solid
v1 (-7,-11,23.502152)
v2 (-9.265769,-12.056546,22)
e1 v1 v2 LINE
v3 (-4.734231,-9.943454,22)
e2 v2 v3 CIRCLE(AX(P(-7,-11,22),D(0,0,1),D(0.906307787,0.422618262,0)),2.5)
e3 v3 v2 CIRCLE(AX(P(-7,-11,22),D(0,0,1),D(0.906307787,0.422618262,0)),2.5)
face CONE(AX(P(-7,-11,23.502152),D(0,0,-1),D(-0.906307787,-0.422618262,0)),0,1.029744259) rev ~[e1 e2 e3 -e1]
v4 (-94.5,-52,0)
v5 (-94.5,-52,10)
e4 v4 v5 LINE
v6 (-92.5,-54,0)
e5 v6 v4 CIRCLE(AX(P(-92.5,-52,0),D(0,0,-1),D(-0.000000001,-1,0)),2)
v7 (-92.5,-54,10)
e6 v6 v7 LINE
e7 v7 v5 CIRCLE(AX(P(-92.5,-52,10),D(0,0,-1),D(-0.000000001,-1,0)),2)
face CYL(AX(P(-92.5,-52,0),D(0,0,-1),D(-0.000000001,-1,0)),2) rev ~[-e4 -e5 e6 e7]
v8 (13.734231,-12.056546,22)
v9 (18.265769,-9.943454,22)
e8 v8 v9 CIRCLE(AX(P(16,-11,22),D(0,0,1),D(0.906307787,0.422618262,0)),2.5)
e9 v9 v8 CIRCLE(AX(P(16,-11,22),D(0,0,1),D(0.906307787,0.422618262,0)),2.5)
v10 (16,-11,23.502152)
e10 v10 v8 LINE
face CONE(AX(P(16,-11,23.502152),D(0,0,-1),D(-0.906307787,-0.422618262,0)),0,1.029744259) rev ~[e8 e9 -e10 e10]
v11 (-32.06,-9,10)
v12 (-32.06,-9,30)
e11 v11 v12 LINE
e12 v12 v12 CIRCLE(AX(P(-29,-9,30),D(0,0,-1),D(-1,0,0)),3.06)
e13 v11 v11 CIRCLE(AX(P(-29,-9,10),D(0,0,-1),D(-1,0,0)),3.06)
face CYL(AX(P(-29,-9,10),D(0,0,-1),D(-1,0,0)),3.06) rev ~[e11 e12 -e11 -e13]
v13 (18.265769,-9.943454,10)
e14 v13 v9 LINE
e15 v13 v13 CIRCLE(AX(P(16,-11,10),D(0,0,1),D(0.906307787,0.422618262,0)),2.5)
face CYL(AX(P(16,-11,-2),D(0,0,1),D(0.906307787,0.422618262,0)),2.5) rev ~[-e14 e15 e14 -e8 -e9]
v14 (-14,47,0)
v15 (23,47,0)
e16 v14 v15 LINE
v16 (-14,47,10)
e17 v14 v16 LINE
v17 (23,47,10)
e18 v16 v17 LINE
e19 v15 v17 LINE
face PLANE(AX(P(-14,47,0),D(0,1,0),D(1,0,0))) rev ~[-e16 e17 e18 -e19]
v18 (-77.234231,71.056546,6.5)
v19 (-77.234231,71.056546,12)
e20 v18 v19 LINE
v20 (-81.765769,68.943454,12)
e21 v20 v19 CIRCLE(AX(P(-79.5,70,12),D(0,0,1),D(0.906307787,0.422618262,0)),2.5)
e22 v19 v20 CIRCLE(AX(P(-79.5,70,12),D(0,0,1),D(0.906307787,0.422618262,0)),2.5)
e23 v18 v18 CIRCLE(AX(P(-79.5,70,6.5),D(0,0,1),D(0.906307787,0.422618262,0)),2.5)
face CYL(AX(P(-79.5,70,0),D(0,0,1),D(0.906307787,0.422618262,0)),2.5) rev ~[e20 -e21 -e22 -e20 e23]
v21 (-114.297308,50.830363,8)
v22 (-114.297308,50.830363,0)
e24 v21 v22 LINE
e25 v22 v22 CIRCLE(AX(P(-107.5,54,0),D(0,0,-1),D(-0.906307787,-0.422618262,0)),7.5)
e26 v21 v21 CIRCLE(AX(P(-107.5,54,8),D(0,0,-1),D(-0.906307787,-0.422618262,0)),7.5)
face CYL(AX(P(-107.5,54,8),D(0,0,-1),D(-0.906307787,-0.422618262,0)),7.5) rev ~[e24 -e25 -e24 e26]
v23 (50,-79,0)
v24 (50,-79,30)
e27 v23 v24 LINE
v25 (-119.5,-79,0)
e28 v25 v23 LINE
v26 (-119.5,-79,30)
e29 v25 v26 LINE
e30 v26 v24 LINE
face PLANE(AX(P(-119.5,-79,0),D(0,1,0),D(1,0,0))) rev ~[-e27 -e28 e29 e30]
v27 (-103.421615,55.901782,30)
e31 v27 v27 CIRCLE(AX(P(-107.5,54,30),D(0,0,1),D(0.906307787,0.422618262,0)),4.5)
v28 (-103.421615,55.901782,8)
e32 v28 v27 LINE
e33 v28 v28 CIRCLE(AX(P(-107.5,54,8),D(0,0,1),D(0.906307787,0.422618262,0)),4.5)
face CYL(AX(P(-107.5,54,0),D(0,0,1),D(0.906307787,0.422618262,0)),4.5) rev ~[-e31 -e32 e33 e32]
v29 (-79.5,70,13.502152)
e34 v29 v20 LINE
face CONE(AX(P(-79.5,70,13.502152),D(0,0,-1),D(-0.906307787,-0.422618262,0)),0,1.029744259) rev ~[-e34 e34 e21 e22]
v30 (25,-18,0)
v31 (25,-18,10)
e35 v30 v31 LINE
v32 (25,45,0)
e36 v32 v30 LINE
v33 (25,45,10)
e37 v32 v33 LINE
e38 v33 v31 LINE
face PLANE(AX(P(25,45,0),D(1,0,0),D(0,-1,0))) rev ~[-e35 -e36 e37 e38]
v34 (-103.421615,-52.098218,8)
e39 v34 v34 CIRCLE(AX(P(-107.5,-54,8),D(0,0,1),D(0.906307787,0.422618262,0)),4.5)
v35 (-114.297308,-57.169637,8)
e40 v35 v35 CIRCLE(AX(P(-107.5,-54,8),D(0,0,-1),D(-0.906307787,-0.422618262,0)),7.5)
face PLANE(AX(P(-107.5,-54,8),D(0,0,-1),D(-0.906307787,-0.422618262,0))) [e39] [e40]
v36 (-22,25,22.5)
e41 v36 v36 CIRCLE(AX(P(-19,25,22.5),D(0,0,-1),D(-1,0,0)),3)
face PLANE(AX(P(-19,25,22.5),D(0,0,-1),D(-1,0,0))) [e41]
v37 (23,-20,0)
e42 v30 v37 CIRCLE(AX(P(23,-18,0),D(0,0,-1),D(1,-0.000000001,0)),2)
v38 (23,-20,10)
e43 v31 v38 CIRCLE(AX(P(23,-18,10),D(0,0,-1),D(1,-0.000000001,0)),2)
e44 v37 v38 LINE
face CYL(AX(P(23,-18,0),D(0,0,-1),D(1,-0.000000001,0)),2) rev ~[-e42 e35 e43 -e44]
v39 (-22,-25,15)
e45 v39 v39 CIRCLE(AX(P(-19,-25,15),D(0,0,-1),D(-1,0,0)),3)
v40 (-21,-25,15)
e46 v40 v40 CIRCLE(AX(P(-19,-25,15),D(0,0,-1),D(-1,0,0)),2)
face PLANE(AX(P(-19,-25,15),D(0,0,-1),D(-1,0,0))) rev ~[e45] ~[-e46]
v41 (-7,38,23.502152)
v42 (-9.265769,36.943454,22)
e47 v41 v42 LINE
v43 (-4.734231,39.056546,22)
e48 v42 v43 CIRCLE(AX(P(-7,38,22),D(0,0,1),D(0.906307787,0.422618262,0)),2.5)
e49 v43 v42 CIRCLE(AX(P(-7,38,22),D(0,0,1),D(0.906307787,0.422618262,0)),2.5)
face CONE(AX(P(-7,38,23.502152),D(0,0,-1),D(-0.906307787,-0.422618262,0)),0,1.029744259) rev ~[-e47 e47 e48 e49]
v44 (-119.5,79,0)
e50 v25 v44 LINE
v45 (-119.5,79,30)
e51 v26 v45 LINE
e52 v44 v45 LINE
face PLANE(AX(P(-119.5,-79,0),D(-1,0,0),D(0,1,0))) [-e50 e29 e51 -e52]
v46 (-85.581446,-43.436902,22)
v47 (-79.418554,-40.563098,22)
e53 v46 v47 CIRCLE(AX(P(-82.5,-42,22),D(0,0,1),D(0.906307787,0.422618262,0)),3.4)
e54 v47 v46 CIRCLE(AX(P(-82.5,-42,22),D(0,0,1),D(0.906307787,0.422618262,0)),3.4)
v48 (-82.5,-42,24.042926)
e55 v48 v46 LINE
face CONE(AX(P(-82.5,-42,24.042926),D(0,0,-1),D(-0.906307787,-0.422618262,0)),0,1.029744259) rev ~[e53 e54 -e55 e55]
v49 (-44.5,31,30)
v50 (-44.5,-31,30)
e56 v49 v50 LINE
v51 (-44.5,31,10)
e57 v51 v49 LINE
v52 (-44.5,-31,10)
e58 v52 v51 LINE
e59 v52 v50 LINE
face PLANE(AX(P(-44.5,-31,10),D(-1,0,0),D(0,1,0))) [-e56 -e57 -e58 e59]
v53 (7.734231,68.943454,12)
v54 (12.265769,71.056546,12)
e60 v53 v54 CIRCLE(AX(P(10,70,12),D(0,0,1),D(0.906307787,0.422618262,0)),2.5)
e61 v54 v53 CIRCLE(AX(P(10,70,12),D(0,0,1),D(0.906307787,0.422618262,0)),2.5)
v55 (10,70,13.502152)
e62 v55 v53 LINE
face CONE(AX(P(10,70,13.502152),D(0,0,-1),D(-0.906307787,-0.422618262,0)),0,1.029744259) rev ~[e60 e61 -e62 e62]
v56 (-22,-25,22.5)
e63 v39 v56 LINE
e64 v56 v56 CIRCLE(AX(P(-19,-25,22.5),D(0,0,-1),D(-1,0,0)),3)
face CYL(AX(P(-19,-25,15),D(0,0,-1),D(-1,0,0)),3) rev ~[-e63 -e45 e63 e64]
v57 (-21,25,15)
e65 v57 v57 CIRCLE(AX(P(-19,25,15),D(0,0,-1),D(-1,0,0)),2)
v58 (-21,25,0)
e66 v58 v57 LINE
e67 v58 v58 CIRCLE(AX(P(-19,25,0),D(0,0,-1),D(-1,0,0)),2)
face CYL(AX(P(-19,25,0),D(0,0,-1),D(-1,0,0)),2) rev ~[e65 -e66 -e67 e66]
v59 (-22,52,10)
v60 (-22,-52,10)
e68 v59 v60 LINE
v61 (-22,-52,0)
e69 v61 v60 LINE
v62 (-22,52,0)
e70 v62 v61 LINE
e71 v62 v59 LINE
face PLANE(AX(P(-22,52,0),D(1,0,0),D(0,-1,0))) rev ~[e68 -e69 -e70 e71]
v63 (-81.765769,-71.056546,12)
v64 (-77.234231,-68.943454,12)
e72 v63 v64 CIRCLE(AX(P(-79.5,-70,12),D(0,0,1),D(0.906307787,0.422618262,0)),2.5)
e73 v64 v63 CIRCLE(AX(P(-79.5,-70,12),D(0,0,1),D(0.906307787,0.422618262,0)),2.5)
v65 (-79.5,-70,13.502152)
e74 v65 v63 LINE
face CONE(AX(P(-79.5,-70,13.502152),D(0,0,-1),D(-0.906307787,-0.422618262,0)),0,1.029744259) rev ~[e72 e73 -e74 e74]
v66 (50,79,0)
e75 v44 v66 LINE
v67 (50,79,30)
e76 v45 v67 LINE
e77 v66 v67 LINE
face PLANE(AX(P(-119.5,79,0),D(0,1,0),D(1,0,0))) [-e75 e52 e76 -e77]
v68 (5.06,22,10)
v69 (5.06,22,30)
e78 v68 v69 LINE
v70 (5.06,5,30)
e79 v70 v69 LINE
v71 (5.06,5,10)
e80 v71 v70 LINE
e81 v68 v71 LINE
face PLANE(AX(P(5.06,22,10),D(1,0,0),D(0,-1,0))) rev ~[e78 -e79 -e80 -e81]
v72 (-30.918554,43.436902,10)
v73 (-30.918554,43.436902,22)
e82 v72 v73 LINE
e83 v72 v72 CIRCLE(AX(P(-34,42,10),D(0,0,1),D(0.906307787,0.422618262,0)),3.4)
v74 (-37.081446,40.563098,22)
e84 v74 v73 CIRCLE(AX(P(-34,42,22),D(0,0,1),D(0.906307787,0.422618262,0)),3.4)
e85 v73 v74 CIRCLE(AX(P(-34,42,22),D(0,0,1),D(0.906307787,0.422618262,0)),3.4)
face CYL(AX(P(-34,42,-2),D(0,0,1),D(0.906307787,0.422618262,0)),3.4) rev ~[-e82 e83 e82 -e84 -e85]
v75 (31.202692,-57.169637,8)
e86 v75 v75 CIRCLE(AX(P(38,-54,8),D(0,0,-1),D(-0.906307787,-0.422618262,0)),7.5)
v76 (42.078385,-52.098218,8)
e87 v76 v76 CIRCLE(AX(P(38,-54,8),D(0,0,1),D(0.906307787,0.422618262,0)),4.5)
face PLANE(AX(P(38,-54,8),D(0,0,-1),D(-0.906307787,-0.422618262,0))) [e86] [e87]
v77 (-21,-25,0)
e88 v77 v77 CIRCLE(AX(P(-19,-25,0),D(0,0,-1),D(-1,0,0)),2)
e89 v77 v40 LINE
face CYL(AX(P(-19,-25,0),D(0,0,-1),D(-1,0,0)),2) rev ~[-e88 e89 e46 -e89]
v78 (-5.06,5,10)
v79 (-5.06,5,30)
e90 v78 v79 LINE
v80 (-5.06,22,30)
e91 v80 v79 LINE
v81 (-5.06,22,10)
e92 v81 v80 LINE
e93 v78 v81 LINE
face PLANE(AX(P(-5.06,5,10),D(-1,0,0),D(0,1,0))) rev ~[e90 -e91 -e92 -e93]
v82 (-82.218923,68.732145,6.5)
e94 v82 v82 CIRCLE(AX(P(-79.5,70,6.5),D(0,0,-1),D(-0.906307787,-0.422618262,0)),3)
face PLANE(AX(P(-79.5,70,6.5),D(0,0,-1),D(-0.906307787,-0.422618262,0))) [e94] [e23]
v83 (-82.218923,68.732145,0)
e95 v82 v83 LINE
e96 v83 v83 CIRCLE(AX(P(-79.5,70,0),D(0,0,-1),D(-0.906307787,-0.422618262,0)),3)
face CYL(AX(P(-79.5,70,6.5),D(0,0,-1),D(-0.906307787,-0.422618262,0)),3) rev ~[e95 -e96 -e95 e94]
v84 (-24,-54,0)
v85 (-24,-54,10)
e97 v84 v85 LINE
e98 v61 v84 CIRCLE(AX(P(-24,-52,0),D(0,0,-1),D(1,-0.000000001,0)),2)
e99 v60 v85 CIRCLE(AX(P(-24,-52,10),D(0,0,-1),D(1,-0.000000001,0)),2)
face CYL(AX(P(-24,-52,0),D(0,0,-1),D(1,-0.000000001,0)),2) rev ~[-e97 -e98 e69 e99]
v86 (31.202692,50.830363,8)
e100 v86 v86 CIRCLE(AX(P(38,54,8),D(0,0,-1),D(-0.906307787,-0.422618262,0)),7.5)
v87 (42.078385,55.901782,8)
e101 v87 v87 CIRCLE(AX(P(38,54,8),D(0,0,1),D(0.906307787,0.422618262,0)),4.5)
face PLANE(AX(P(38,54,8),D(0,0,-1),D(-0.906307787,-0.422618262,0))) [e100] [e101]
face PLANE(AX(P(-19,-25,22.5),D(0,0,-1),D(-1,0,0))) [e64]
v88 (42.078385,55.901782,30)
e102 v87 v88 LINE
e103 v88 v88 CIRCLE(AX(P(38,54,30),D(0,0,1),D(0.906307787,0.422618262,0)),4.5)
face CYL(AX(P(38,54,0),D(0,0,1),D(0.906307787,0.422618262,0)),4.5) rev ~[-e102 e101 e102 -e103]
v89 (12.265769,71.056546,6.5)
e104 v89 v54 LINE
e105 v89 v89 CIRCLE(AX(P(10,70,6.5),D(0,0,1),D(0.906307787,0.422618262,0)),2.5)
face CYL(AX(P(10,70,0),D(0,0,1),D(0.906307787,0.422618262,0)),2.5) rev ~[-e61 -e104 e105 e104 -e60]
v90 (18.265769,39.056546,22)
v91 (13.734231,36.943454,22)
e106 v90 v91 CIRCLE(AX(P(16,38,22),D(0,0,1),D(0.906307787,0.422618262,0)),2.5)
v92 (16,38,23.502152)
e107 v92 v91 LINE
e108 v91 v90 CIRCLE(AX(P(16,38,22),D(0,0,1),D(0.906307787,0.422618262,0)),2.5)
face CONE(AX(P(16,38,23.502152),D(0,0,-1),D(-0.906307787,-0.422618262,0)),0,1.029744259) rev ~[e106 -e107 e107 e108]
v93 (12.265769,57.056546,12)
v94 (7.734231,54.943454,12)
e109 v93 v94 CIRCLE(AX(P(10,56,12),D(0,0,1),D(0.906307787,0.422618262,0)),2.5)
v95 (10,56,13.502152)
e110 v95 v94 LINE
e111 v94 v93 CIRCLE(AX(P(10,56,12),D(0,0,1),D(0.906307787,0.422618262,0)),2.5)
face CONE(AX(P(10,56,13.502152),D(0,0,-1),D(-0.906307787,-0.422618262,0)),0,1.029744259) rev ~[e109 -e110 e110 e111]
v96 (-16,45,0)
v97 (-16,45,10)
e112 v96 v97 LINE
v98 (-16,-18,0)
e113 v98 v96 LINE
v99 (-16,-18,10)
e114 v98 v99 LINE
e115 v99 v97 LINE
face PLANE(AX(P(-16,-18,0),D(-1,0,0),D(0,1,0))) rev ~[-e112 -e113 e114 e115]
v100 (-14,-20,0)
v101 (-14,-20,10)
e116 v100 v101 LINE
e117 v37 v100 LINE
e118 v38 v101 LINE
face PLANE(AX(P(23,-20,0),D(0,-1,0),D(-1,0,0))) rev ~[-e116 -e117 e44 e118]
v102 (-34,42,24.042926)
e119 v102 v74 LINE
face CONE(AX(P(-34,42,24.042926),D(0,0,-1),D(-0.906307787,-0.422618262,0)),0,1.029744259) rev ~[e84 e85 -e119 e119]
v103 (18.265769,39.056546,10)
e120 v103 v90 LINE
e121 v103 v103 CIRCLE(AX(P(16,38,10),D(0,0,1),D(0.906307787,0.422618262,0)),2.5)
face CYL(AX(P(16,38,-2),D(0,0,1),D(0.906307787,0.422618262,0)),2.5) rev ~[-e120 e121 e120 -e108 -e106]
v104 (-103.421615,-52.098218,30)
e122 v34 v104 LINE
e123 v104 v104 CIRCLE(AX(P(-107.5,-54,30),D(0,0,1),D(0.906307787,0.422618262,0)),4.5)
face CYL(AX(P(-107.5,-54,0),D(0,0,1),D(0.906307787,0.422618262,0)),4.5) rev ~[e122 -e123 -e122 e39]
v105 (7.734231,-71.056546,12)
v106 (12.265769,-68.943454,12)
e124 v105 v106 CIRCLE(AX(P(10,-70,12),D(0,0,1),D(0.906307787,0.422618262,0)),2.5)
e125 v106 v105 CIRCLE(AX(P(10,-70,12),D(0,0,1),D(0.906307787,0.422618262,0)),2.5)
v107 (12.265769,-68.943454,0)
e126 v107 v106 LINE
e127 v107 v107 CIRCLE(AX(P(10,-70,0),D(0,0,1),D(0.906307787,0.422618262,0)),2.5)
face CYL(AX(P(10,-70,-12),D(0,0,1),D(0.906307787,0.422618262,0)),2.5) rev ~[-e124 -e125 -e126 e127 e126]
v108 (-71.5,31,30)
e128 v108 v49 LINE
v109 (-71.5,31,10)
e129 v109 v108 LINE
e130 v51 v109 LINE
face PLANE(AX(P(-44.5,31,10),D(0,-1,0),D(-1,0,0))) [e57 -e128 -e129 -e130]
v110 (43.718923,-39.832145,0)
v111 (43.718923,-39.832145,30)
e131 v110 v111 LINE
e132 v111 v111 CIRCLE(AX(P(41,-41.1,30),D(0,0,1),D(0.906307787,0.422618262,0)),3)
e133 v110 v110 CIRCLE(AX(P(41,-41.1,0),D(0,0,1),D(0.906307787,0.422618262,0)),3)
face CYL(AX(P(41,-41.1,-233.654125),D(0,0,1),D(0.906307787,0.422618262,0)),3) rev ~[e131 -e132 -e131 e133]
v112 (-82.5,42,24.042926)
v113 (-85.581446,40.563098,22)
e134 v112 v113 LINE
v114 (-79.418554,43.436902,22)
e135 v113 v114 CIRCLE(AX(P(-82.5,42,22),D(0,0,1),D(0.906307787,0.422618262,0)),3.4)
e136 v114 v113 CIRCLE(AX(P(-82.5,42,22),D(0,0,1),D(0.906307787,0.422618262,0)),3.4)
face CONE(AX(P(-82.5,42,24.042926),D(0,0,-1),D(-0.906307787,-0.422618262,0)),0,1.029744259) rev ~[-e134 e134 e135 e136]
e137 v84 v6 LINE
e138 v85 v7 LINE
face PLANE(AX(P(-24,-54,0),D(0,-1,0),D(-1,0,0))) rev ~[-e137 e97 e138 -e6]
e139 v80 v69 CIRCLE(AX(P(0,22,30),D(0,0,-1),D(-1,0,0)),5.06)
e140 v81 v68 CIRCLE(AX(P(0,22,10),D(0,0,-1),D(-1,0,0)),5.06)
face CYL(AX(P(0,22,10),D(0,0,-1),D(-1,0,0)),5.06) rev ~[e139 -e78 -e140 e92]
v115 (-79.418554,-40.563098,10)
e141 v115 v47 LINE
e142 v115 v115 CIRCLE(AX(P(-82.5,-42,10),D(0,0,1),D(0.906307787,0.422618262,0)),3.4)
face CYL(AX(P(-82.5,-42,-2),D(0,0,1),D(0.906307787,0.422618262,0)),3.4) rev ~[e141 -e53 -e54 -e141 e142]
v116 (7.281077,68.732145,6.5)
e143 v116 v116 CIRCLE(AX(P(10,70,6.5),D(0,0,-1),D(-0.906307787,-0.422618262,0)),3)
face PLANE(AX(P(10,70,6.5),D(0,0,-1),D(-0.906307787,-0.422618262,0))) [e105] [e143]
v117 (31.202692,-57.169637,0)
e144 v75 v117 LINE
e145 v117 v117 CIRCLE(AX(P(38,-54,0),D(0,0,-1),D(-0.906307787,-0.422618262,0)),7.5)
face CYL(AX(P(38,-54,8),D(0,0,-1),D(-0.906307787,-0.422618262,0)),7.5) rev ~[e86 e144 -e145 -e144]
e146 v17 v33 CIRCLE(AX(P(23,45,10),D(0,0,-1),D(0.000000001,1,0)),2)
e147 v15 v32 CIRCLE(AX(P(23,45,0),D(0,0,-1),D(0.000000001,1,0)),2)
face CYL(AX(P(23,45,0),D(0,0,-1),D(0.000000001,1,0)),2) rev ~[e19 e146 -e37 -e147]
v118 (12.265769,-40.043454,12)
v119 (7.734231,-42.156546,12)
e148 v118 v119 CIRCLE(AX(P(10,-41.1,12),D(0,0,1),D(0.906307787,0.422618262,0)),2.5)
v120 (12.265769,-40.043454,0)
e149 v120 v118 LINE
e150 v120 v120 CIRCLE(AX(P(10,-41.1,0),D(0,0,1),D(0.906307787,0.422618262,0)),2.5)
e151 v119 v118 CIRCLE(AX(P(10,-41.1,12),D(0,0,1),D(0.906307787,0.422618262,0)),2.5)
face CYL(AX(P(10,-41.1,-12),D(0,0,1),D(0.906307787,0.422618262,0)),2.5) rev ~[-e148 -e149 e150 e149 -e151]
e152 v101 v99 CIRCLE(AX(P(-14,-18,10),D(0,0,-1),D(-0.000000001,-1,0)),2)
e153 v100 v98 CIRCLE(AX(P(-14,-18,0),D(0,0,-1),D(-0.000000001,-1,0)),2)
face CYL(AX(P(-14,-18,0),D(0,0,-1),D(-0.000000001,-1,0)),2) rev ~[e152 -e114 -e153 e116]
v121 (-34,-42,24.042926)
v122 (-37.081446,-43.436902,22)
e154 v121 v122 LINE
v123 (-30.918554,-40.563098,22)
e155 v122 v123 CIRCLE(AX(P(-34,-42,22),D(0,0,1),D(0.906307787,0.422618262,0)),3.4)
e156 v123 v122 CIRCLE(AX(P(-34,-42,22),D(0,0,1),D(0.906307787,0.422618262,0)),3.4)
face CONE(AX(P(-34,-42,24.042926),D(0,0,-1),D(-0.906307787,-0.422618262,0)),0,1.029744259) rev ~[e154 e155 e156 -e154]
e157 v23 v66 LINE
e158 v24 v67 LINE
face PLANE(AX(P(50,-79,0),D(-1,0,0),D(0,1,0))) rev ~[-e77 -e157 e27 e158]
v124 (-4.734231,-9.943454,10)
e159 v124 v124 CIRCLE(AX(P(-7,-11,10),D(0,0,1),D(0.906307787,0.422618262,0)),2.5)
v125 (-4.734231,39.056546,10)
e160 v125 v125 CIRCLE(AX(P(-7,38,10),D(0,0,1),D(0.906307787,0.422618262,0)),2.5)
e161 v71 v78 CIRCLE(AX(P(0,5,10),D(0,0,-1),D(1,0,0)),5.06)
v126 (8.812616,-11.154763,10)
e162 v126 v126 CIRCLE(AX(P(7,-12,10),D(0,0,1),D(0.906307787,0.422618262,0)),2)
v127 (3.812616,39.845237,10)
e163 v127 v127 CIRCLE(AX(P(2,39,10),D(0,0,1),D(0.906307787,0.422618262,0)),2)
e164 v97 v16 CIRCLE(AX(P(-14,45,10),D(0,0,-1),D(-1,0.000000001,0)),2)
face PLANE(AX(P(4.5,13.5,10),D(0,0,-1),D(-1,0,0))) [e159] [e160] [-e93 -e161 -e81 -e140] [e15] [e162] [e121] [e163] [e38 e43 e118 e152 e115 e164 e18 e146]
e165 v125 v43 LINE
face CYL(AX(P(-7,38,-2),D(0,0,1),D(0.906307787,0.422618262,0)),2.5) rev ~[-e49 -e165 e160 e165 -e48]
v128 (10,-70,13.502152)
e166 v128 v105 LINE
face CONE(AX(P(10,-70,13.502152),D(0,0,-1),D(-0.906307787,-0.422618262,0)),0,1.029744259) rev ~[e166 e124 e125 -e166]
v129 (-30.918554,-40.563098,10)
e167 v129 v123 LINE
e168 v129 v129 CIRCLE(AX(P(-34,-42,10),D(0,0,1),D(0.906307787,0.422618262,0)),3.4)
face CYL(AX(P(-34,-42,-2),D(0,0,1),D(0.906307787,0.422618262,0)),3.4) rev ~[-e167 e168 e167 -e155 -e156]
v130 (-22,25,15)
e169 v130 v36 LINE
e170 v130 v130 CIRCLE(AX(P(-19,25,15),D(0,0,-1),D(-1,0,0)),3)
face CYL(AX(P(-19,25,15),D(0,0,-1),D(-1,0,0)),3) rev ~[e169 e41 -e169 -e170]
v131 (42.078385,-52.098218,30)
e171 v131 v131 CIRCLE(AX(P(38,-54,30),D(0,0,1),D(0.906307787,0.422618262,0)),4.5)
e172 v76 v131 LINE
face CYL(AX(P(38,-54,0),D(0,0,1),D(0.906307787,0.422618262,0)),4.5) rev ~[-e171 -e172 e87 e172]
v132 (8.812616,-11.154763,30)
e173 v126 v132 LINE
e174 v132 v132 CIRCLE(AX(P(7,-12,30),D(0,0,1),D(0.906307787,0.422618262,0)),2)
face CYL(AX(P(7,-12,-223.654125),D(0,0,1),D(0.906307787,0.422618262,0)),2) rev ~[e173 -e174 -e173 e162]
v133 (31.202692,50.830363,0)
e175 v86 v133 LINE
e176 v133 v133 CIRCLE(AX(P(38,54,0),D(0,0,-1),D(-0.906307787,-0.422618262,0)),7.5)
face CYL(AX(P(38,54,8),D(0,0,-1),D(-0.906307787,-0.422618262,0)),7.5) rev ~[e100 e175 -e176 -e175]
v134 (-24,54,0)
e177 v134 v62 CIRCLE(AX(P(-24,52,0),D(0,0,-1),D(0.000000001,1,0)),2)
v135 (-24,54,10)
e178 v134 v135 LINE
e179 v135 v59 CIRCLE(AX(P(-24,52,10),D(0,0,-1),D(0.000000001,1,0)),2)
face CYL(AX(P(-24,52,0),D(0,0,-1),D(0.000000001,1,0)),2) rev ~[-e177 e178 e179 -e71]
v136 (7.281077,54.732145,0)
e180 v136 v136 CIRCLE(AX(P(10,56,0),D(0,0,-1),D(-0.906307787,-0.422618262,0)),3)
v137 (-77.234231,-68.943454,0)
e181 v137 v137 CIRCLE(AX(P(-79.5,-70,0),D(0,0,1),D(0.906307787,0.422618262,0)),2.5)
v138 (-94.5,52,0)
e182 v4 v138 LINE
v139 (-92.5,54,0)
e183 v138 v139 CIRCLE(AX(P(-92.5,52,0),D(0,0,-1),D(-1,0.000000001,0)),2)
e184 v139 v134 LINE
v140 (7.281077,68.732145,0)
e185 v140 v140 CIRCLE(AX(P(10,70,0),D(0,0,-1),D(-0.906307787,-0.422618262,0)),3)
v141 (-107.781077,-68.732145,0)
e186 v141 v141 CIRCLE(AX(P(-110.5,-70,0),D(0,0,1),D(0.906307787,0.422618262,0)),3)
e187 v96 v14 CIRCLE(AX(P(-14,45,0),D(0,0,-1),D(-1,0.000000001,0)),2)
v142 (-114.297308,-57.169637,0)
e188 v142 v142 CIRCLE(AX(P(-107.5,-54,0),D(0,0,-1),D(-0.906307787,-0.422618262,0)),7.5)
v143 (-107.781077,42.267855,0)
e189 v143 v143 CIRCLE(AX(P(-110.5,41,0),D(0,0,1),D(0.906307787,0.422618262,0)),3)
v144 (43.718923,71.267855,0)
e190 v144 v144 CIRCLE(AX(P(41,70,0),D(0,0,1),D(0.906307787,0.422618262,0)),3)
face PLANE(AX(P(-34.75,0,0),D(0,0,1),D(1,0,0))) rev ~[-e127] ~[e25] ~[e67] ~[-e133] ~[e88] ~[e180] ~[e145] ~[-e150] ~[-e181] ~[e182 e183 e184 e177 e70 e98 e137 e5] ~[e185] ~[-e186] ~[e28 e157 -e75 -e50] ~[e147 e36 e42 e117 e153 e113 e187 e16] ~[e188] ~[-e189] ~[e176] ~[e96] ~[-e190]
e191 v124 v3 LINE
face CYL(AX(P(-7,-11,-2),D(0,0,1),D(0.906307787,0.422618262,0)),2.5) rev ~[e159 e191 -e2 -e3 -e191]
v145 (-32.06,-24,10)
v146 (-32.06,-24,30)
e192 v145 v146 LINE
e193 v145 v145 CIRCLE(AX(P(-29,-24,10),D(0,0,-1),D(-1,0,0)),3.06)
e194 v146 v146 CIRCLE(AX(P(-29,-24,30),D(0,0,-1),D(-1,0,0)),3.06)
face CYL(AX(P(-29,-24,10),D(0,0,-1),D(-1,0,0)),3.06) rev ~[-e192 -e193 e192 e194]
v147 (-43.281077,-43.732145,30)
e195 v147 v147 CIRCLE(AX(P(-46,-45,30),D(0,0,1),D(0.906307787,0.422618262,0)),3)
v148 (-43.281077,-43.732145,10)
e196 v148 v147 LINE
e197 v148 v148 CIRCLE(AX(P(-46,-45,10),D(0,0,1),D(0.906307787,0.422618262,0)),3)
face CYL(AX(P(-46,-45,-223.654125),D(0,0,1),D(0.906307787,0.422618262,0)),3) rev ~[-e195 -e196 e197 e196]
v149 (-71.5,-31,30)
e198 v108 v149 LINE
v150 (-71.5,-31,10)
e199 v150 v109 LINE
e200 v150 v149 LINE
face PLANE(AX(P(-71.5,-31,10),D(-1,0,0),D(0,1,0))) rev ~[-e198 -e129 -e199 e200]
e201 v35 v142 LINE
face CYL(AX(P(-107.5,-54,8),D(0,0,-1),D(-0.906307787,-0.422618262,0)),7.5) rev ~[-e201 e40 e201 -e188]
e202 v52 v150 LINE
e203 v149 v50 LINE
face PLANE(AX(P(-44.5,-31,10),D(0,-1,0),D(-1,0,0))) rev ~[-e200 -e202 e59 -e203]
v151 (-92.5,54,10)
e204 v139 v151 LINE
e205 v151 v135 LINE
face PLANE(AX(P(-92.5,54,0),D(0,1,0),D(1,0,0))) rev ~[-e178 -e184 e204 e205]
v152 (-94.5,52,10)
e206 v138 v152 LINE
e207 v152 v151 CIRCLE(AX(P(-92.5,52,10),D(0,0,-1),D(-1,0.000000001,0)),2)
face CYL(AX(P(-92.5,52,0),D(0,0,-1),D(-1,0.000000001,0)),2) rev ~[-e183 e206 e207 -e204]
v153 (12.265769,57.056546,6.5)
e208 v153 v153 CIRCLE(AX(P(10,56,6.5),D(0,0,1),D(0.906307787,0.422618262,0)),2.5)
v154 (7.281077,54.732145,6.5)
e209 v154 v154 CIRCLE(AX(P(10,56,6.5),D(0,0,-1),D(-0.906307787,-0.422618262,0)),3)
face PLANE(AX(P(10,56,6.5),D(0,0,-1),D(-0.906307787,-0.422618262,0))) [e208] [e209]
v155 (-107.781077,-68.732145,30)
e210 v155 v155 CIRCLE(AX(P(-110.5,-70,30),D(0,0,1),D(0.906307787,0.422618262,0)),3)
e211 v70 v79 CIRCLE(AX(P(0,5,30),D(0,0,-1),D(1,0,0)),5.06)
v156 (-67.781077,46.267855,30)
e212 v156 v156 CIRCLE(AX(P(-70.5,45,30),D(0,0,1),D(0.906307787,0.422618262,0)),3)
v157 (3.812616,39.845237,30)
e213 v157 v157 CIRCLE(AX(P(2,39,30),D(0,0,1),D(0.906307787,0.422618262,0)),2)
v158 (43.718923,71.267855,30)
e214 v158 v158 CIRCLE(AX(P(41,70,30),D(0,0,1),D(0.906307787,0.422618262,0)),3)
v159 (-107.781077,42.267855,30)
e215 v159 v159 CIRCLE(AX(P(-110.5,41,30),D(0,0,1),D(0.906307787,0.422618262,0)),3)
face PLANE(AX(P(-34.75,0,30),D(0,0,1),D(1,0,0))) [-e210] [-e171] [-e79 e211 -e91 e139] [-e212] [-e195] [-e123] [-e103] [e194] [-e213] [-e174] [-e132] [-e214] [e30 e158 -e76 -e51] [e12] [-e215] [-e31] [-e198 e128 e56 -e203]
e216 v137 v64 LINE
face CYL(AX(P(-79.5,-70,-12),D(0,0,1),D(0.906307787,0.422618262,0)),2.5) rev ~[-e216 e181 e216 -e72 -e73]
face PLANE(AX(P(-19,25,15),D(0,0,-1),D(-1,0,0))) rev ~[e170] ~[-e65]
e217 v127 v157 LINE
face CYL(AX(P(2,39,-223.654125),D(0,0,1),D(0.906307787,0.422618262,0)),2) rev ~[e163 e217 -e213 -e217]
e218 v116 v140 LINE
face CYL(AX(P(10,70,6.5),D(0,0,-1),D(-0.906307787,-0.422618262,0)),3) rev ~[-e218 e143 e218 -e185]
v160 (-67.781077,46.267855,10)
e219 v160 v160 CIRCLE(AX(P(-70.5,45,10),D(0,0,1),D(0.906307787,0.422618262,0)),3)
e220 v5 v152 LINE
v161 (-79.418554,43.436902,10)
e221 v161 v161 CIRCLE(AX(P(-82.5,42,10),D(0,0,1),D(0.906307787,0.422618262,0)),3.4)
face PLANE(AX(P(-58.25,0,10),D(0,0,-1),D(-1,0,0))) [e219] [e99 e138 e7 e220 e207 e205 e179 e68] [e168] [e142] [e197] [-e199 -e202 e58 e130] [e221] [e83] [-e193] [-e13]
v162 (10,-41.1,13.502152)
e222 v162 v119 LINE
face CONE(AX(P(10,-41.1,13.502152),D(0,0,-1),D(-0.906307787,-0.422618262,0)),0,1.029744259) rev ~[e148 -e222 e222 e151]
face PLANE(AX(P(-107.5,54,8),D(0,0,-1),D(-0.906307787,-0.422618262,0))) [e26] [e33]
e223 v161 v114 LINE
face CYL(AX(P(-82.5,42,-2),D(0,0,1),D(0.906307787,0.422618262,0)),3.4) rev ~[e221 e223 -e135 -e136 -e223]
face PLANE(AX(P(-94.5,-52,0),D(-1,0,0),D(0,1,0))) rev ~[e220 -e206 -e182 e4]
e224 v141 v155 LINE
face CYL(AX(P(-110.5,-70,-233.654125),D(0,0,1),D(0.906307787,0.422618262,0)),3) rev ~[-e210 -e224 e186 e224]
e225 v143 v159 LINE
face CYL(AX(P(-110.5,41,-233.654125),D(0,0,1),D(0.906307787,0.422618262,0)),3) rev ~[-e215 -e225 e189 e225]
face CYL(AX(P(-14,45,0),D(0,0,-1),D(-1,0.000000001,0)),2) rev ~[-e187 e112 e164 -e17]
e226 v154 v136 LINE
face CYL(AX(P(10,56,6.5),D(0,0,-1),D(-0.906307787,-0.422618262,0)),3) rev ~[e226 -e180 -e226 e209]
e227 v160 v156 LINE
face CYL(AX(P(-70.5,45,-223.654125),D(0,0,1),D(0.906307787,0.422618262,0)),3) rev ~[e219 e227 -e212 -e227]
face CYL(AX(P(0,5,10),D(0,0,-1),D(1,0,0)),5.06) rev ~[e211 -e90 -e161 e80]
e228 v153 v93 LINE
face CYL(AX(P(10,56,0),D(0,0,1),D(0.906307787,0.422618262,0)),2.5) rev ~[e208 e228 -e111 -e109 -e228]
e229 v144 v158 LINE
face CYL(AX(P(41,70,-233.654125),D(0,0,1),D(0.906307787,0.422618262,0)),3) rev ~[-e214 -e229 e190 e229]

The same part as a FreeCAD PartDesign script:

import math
import FreeCAD as App
import Part
import Sketcher
from FreeCAD import Vector
Q = App.Units.Quantity


def add_polygon(sketch, points):
    """Adds a closed chain of lines whose ends are joined by coincident constraints."""
    first, n = sketch.GeometryCount, len(points)
    for a, b in zip(points, points[1:] + points[:1]):
        sketch.addGeometry(Part.LineSegment(App.Vector(*a, 0), App.Vector(*b, 0)), False)
    for i in range(n):
        sketch.addConstraint(Sketcher.Constraint("Coincident", first + i, 2, first + (i + 1) % n, 1))

doc = App.newDocument("Part")
body = doc.addObject("PartDesign::Body", "Body")

sketch1 = body.newObject("Sketcher::SketchObject", "Sketch")
sketch1.AttachmentSupport = (doc.getObject("XY_Plane"), [""])
sketch1.MapMode = "FlatFace"
add_polygon(sketch1, [(-120, 79), (-120, -79), (50, -79), (50, 79)])
sketch1.addConstraint([
    Sketcher.Constraint("Vertical", 0),
    Sketcher.Constraint("Horizontal", 1),
    Sketcher.Constraint("Vertical", 2),
    Sketcher.Constraint("Horizontal", 3),
    Sketcher.Constraint("DistanceY", 0, 2, 0, 1, Q("158 mm")),
    Sketcher.Constraint("DistanceX", 1, 1, 1, 2, Q("169.5 mm")),
    Sketcher.Constraint("DistanceY", 0, 2, -1, 1, Q("79 mm")),
    Sketcher.Constraint("DistanceX", -1, 1, 1, 2, Q("50 mm")),
])
pad1 = body.newObject("PartDesign::Pad", "Pad")
pad1.Profile = sketch1
pad1.Length = 30

sketch2 = body.newObject("Sketcher::SketchObject", "Sketch001")
sketch2.AttachmentSupport = (doc.getObject("XY_Plane"), [""])
sketch2.MapMode = "FlatFace"
sketch2.AttachmentOffset = App.Placement(Vector(0, 0, 10), App.Rotation())
sketch2.addGeometry(Part.Circle(Vector(-29, -9, 0), Vector(0, 0, 1), 3.1), False)
sketch2.addGeometry(Part.Circle(Vector(-29, -24, 0), Vector(0, 0, 1), 3.1), False)
sketch2.addGeometry(Part.LineSegment(Vector(5.1, 22, 0), Vector(5.1, 5, 0)), False)
sketch2.addGeometry(Part.ArcOfCircle(Part.Circle(Vector(0, 5, 0), Vector(0, 0, 1), 5.1), math.radians(180), math.radians(360)), False)
sketch2.addGeometry(Part.LineSegment(Vector(-5.1, 5, 0), Vector(-5.1, 22, 0)), False)
sketch2.addGeometry(Part.ArcOfCircle(Part.Circle(Vector(0, 22, 0), Vector(0, 0, 1), 5.1), math.radians(0), math.radians(180)), False)
add_polygon(sketch2, [(-44.5, 31), (-44.5, -31), (-71.5, -31), (-71.5, 31)])
sketch2.addConstraint([
    Sketcher.Constraint("Tangent", 2, 2, 3, 2),
    Sketcher.Constraint("Tangent", 3, 1, 4, 1),
    Sketcher.Constraint("Tangent", 4, 2, 5, 2),
    Sketcher.Constraint("Tangent", 5, 1, 2, 1),
    Sketcher.Constraint("Vertical", 2),
    Sketcher.Constraint("Vertical", 4),
    Sketcher.Constraint("Vertical", 6),
    Sketcher.Constraint("Horizontal", 7),
    Sketcher.Constraint("Vertical", 8),
    Sketcher.Constraint("Horizontal", 9),
    Sketcher.Constraint("Equal", 0, 1),
    Sketcher.Constraint("PointOnObject", 3, 3, -2),
    Sketcher.Constraint("Vertical", 0, 3, 1, 3),
    Sketcher.Constraint("Diameter", 0, Q("6.12 mm")),
    Sketcher.Constraint("DistanceX", 7, 2, 7, 1, Q("27 mm")),
    Sketcher.Constraint("DistanceY", 2, 2, 2, 1, Q("17 mm")),
    Sketcher.Constraint("DistanceY", 6, 2, 6, 1, Q("62 mm")),
    Sketcher.Constraint("Radius", 3, Q("5.06 mm")),
    Sketcher.Constraint("DistanceX", 0, 3, -1, 1, Q("29 mm")),
    Sketcher.Constraint("DistanceY", 0, 3, -1, 1, Q("9 mm")),
    Sketcher.Constraint("DistanceY", 1, 3, -1, 1, Q("24 mm")),
    Sketcher.Constraint("DistanceY", -1, 1, 3, 3, Q("5 mm")),
    Sketcher.Constraint("DistanceY", 6, 2, -1, 1, Q("31 mm")),
    Sketcher.Constraint("DistanceX", 6, 2, -1, 1, Q("44.5 mm")),
])
pocket1 = body.newObject("PartDesign::Pocket", "Pocket")
pocket1.Profile = sketch2
pocket1.Type = "ThroughAll"
pocket1.Reversed = True

sketch3 = body.newObject("Sketcher::SketchObject", "Sketch002")
sketch3.AttachmentSupport = (doc.getObject("XY_Plane"), [""])
sketch3.MapMode = "FlatFace"
sketch3.addGeometry([
    Part.LineSegment(Vector(25, 45, 0), Vector(25, -18, 0)),
    Part.ArcOfCircle(Part.Circle(Vector(23, -18, 0), Vector(0, 0, 1), 2), math.radians(-90), math.radians(0)),
    Part.LineSegment(Vector(23, -20, 0), Vector(-14, -20, 0)),
    Part.ArcOfCircle(Part.Circle(Vector(-14, -18, 0), Vector(0, 0, 1), 2), math.radians(-180), math.radians(-90)),
    Part.LineSegment(Vector(-16, -18, 0), Vector(-16, 45, 0)),
    Part.ArcOfCircle(Part.Circle(Vector(-14, 45, 0), Vector(0, 0, 1), 2), math.radians(90), math.radians(180)),
    Part.LineSegment(Vector(-14, 47, 0), Vector(23, 47, 0)),
    Part.ArcOfCircle(Part.Circle(Vector(23, 45, 0), Vector(0, 0, 1), 2), math.radians(0), math.radians(90)),
    Part.LineSegment(Vector(-24, -54, 0), Vector(-92.5, -54, 0)),
    Part.ArcOfCircle(Part.Circle(Vector(-92.5, -52, 0), Vector(0, 0, 1), 2), math.radians(-180), math.radians(-90)),
    Part.LineSegment(Vector(-94.5, -52, 0), Vector(-94.5, 52, 0)),
    Part.ArcOfCircle(Part.Circle(Vector(-92.5, 52, 0), Vector(0, 0, 1), 2), math.radians(90), math.radians(180)),
    Part.LineSegment(Vector(-92.5, 54, 0), Vector(-24, 54, 0)),
    Part.ArcOfCircle(Part.Circle(Vector(-24, 52, 0), Vector(0, 0, 1), 2), math.radians(0), math.radians(90)),
    Part.LineSegment(Vector(-22, 52, 0), Vector(-22, -52, 0)),
    Part.ArcOfCircle(Part.Circle(Vector(-24, -52, 0), Vector(0, 0, 1), 2), math.radians(-90), math.radians(0)),
], False)
sketch3.addConstraint([
    Sketcher.Constraint("Tangent", 0, 2, 1, 2),
    Sketcher.Constraint("Tangent", 1, 1, 2, 1),
    Sketcher.Constraint("Tangent", 2, 2, 3, 2),
    Sketcher.Constraint("Tangent", 3, 1, 4, 1),
    Sketcher.Constraint("Tangent", 4, 2, 5, 2),
    Sketcher.Constraint("Tangent", 5, 1, 6, 1),
    Sketcher.Constraint("Tangent", 6, 2, 7, 2),
    Sketcher.Constraint("Tangent", 7, 1, 0, 1),
    Sketcher.Constraint("Tangent", 8, 2, 9, 2),
    Sketcher.Constraint("Tangent", 9, 1, 10, 1),
    Sketcher.Constraint("Tangent", 10, 2, 11, 2),
    Sketcher.Constraint("Tangent", 11, 1, 12, 1),
    Sketcher.Constraint("Tangent", 12, 2, 13, 2),
    Sketcher.Constraint("Tangent", 13, 1, 14, 1),
    Sketcher.Constraint("Tangent", 14, 2, 15, 2),
    Sketcher.Constraint("Tangent", 15, 1, 8, 1),
    Sketcher.Constraint("Vertical", 0),
    Sketcher.Constraint("Horizontal", 2),
    Sketcher.Constraint("Vertical", 4),
    Sketcher.Constraint("Horizontal", 6),
    Sketcher.Constraint("Horizontal", 8),
    Sketcher.Constraint("Vertical", 10),
    Sketcher.Constraint("Horizontal", 12),
    Sketcher.Constraint("Vertical", 14),
    Sketcher.Constraint("Equal", 1, 3),
    Sketcher.Constraint("Equal", 3, 5),
    Sketcher.Constraint("Equal", 5, 7),
    Sketcher.Constraint("Equal", 7, 9),
    Sketcher.Constraint("Equal", 9, 11),
    Sketcher.Constraint("Equal", 11, 13),
    Sketcher.Constraint("Equal", 13, 15),
    Sketcher.Constraint("Radius", 1, Q("2 mm")),
    Sketcher.Constraint("DistanceX", 2, 2, 2, 1, Q("37 mm")),
    Sketcher.Constraint("DistanceY", 0, 2, 0, 1, Q("63 mm")),
    Sketcher.Constraint("DistanceY", 10, 1, 10, 2, Q("104 mm")),
    Sketcher.Constraint("DistanceX", 8, 2, 8, 1, Q("68.5 mm")),
    Sketcher.Constraint("DistanceX", -1, 1, 1, 3, Q("23 mm")),
    Sketcher.Constraint("DistanceY", 1, 3, -1, 1, Q("18 mm")),
    Sketcher.Constraint("DistanceY", 9, 3, -1, 1, Q("52 mm")),
    Sketcher.Constraint("DistanceX", 13, 3, -1, 1, Q("24 mm")),
])
pocket2 = body.newObject("PartDesign::Pocket", "Pocket001")
pocket2.Profile = sketch3
pocket2.Length = 10
pocket2.Reversed = True

sketch4 = body.newObject("Sketcher::SketchObject", "Sketch003")
sketch4.AttachmentSupport = (doc.getObject("XY_Plane"), [""])
sketch4.MapMode = "FlatFace"
sketch4.addGeometry([
    Part.Circle(Vector(-19, 25, 0), Vector(0, 0, 1), 2),
    Part.Circle(Vector(-19, -25, 0), Vector(0, 0, 1), 2),
], False)
sketch4.addConstraint([
    Sketcher.Constraint("Equal", 0, 1),
    Sketcher.Constraint("Symmetric", 0, 3, 1, 3, -1),
    Sketcher.Constraint("Diameter", 0, Q("4 mm")),
    Sketcher.Constraint("DistanceX", 0, 3, -1, 1, Q("19 mm")),
    Sketcher.Constraint("DistanceY", -1, 1, 0, 3, Q("25 mm")),
])
pocket3 = body.newObject("PartDesign::Pocket", "Pocket002")
pocket3.Profile = sketch4
pocket3.Length = 15
pocket3.Reversed = True

sketch5 = body.newObject("Sketcher::SketchObject", "Sketch004")
sketch5.AttachmentSupport = (doc.getObject("XY_Plane"), [""])
sketch5.MapMode = "FlatFace"
sketch5.AttachmentOffset = App.Placement(Vector(0, 0, 15), App.Rotation())
sketch5.addGeometry([
    Part.Circle(Vector(-19, 25, 0), Vector(0, 0, 1), 3),
    Part.Circle(Vector(-19, -25, 0), Vector(0, 0, 1), 3),
], False)
sketch5.addConstraint([
    Sketcher.Constraint("Equal", 0, 1),
    Sketcher.Constraint("Symmetric", 0, 3, 1, 3, -1),
    Sketcher.Constraint("Diameter", 0, Q("6 mm")),
    Sketcher.Constraint("DistanceX", 0, 3, -1, 1, Q("19 mm")),
    Sketcher.Constraint("DistanceY", -1, 1, 0, 3, Q("25 mm")),
])
pocket4 = body.newObject("PartDesign::Pocket", "Pocket003")
pocket4.Profile = sketch5
pocket4.Length = 7.5
pocket4.Reversed = True

sketch6 = body.newObject("Sketcher::SketchObject", "Sketch005")
sketch6.AttachmentSupport = (doc.getObject("XY_Plane"), [""])
sketch6.MapMode = "FlatFace"
sketch6.addGeometry([
    Part.Circle(Vector(-107.5, 54, 0), Vector(0, 0, 1), 4.5),
    Part.Circle(Vector(-107.5, -54, 0), Vector(0, 0, 1), 4.5),
    Part.Circle(Vector(38, 54, 0), Vector(0, 0, 1), 4.5),
    Part.Circle(Vector(38, -54, 0), Vector(0, 0, 1), 4.5),
], False)
sketch6.addConstraint([
    Sketcher.Constraint("Equal", 0, 1),
    Sketcher.Constraint("Equal", 1, 2),
    Sketcher.Constraint("Equal", 2, 3),
    Sketcher.Constraint("Symmetric", 0, 3, 1, 3, -1),
    Sketcher.Constraint("Symmetric", 2, 3, 3, 3, -1),
    Sketcher.Constraint("Horizontal", 0, 3, 2, 3),
    Sketcher.Constraint("Diameter", 0, Q("9 mm")),
    Sketcher.Constraint("DistanceY", -1, 1, 0, 3, Q("54 mm")),
    Sketcher.Constraint("DistanceX", -1, 1, 2, 3, Q("38 mm")),
    Sketcher.Constraint("DistanceX", 0, 3, -1, 1, Q("107.5 mm")),
])
doc.recompute()
hole = body.newObject("PartDesign::Hole", "Hole")
hole.Profile = sketch6
hole.ThreadType = "None"
hole.Diameter = 9
hole.DepthType = "ThroughAll"
hole.HoleCutType = "Counterbore"
hole.HoleCutDiameter = 15
hole.HoleCutDepth = 8
hole.Reversed = True

sketch7 = body.newObject("Sketcher::SketchObject", "Sketch006")
sketch7.AttachmentSupport = (doc.getObject("XY_Plane"), [""])
sketch7.MapMode = "FlatFace"
sketch7.AttachmentOffset = App.Placement(Vector(0, 0, 10), App.Rotation())
sketch7.addGeometry([
    Part.Circle(Vector(-82.5, 42, 0), Vector(0, 0, 1), 3.4),
    Part.Circle(Vector(-34, 42, 0), Vector(0, 0, 1), 3.4),
    Part.Circle(Vector(-34, -42, 0), Vector(0, 0, 1), 3.4),
    Part.Circle(Vector(-82.5, -42, 0), Vector(0, 0, 1), 3.4),
], False)
sketch7.addConstraint([
    Sketcher.Constraint("Equal", 0, 1),
    Sketcher.Constraint("Equal", 1, 2),
    Sketcher.Constraint("Equal", 2, 3),
    Sketcher.Constraint("Symmetric", 1, 3, 2, 3, -1),
    Sketcher.Constraint("Symmetric", 0, 3, 3, 3, -1),
    Sketcher.Constraint("Horizontal", 0, 3, 1, 3),
    Sketcher.Constraint("Diameter", 0, Q("6.8 mm")),
    Sketcher.Constraint("DistanceY", -1, 1, 0, 3, Q("42 mm")),
    Sketcher.Constraint("DistanceX", 1, 3, -1, 1, Q("34 mm")),
    Sketcher.Constraint("DistanceX", 0, 3, -1, 1, Q("82.5 mm")),
])
doc.recompute()
hole2 = body.newObject("PartDesign::Hole", "Hole001")
hole2.Profile = sketch7
hole2.ThreadType = "None"
hole2.Diameter = 6.8
hole2.DepthType = "Dimension"
hole2.Depth = 12
hole2.DrillPoint = "Angled"
hole2.DrillPointAngle = 118
hole2.Reversed = True

sketch8 = body.newObject("Sketcher::SketchObject", "Sketch007")
sketch8.AttachmentSupport = (doc.getObject("XY_Plane"), [""])
sketch8.MapMode = "FlatFace"
sketch8.AttachmentOffset = App.Placement(Vector(0, 0, 10), App.Rotation())
sketch8.addGeometry([
    Part.Circle(Vector(16, 38, 0), Vector(0, 0, 1), 2.5),
    Part.Circle(Vector(-7, -11, 0), Vector(0, 0, 1), 2.5),
    Part.Circle(Vector(16, -11, 0), Vector(0, 0, 1), 2.5),
    Part.Circle(Vector(-7, 38, 0), Vector(0, 0, 1), 2.5),
], False)
sketch8.addConstraint([
    Sketcher.Constraint("Equal", 0, 1),
    Sketcher.Constraint("Equal", 1, 2),
    Sketcher.Constraint("Equal", 2, 3),
    Sketcher.Constraint("Horizontal", 1, 3, 2, 3),
    Sketcher.Constraint("Horizontal", 0, 3, 3, 3),
    Sketcher.Constraint("Vertical", 0, 3, 2, 3),
    Sketcher.Constraint("Vertical", 1, 3, 3, 3),
    Sketcher.Constraint("Diameter", 0, Q("5 mm")),
    Sketcher.Constraint("DistanceX", -1, 1, 0, 3, Q("16 mm")),
    Sketcher.Constraint("DistanceY", -1, 1, 0, 3, Q("38 mm")),
    Sketcher.Constraint("DistanceX", 1, 3, -1, 1, Q("7 mm")),
    Sketcher.Constraint("DistanceY", 1, 3, -1, 1, Q("11 mm")),
])
doc.recompute()
hole3 = body.newObject("PartDesign::Hole", "Hole002")
hole3.Profile = sketch8
hole3.ThreadType = "None"
hole3.Diameter = 5
hole3.DepthType = "Dimension"
hole3.Depth = 12
hole3.DrillPoint = "Angled"
hole3.DrillPointAngle = 118
hole3.Reversed = True

sketch9 = body.newObject("Sketcher::SketchObject", "Sketch008")
sketch9.AttachmentSupport = (doc.getObject("XY_Plane"), [""])
sketch9.MapMode = "FlatFace"
sketch9.addGeometry([
    Part.Circle(Vector(-79.5, -70, 0), Vector(0, 0, 1), 2.5),
    Part.Circle(Vector(10, -70, 0), Vector(0, 0, 1), 2.5),
    Part.Circle(Vector(10, -41.1, 0), Vector(0, 0, 1), 2.5),
], False)
sketch9.addConstraint([
    Sketcher.Constraint("Equal", 0, 1),
    Sketcher.Constraint("Equal", 1, 2),
    Sketcher.Constraint("Horizontal", 0, 3, 1, 3),
    Sketcher.Constraint("Vertical", 1, 3, 2, 3),
    Sketcher.Constraint("Diameter", 0, Q("5 mm")),
    Sketcher.Constraint("DistanceY", 0, 3, -1, 1, Q("70 mm")),
    Sketcher.Constraint("DistanceX", -1, 1, 1, 3, Q("10 mm")),
    Sketcher.Constraint("DistanceX", 0, 3, -1, 1, Q("79.5 mm")),
    Sketcher.Constraint("DistanceY", 2, 3, -1, 1, Q("41.1 mm")),
])
doc.recompute()
hole4 = body.newObject("PartDesign::Hole", "Hole003")
hole4.Profile = sketch9
hole4.ThreadType = "None"
hole4.Diameter = 5
hole4.DepthType = "Dimension"
hole4.Depth = 12
hole4.DrillPoint = "Angled"
hole4.DrillPointAngle = 118
hole4.Reversed = True

sketch10 = body.newObject("Sketcher::SketchObject", "Sketch009")
sketch10.AttachmentSupport = (doc.getObject("XY_Plane"), [""])
sketch10.MapMode = "FlatFace"
sketch10.addGeometry([
    Part.Circle(Vector(-79.5, 70, 0), Vector(0, 0, 1), 2.5),
    Part.Circle(Vector(10, 56, 0), Vector(0, 0, 1), 2.5),
    Part.Circle(Vector(10, 70, 0), Vector(0, 0, 1), 2.5),
], False)
sketch10.addConstraint([
    Sketcher.Constraint("Equal", 0, 1),
    Sketcher.Constraint("Equal", 1, 2),
    Sketcher.Constraint("Horizontal", 0, 3, 2, 3),
    Sketcher.Constraint("Vertical", 1, 3, 2, 3),
    Sketcher.Constraint("Diameter", 0, Q("5 mm")),
    Sketcher.Constraint("DistanceY", -1, 1, 0, 3, Q("70 mm")),
    Sketcher.Constraint("DistanceX", -1, 1, 1, 3, Q("10 mm")),
    Sketcher.Constraint("DistanceY", -1, 1, 1, 3, Q("56 mm")),
    Sketcher.Constraint("DistanceX", 0, 3, -1, 1, Q("79.5 mm")),
])
doc.recompute()
hole5 = body.newObject("PartDesign::Hole", "Hole004")
hole5.Profile = sketch10
hole5.ThreadType = "None"
hole5.Diameter = 5
hole5.DepthType = "Dimension"
hole5.Depth = 12
hole5.DrillPoint = "Angled"
hole5.DrillPointAngle = 118
hole5.HoleCutType = "Counterbore"
hole5.HoleCutDiameter = 6
hole5.HoleCutDepth = 6.5
hole5.Reversed = True

sketch11 = body.newObject("Sketcher::SketchObject", "Sketch010")
sketch11.AttachmentSupport = (doc.getObject("XY_Plane"), [""])
sketch11.MapMode = "FlatFace"
sketch11.addGeometry([
    Part.Circle(Vector(41, 70, 0), Vector(0, 0, 1), 3),
    Part.Circle(Vector(-110.5, 41, 0), Vector(0, 0, 1), 3),
], False)
sketch11.addConstraint([
    Sketcher.Constraint("Equal", 0, 1),
    Sketcher.Constraint("Diameter", 0, Q("6 mm")),
    Sketcher.Constraint("DistanceX", -1, 1, 0, 3, Q("41 mm")),
    Sketcher.Constraint("DistanceY", -1, 1, 0, 3, Q("70 mm")),
    Sketcher.Constraint("DistanceY", -1, 1, 1, 3, Q("41 mm")),
    Sketcher.Constraint("DistanceX", 1, 3, -1, 1, Q("110.5 mm")),
])
doc.recompute()
hole6 = body.newObject("PartDesign::Hole", "Hole005")
hole6.Profile = sketch11
hole6.ThreadType = "None"
hole6.Diameter = 6
hole6.DepthType = "ThroughAll"
hole6.Reversed = True

sketch12 = body.newObject("Sketcher::SketchObject", "Sketch011")
sketch12.AttachmentSupport = (doc.getObject("XY_Plane"), [""])
sketch12.MapMode = "FlatFace"
sketch12.addGeometry([
    Part.Circle(Vector(41, -41.1, 0), Vector(0, 0, 1), 3),
    Part.Circle(Vector(-110.5, -70, 0), Vector(0, 0, 1), 3),
], False)
sketch12.addConstraint([
    Sketcher.Constraint("Equal", 0, 1),
    Sketcher.Constraint("Diameter", 0, Q("6 mm")),
    Sketcher.Constraint("DistanceX", -1, 1, 0, 3, Q("41 mm")),
    Sketcher.Constraint("DistanceY", 1, 3, -1, 1, Q("70 mm")),
    Sketcher.Constraint("DistanceY", 0, 3, -1, 1, Q("41.1 mm")),
    Sketcher.Constraint("DistanceX", 1, 3, -1, 1, Q("110.5 mm")),
])
doc.recompute()
hole7 = body.newObject("PartDesign::Hole", "Hole006")
hole7.Profile = sketch12
hole7.ThreadType = "None"
hole7.Diameter = 6
hole7.DepthType = "ThroughAll"
hole7.Reversed = True

sketch13 = body.newObject("Sketcher::SketchObject", "Sketch012")
sketch13.AttachmentSupport = (doc.getObject("XY_Plane"), [""])
sketch13.MapMode = "FlatFace"
sketch13.AttachmentOffset = App.Placement(Vector(0, 0, 10), App.Rotation())
sketch13.addGeometry([
    Part.Circle(Vector(-70.5, 45, 0), Vector(0, 0, 1), 3),
    Part.Circle(Vector(-46, -45, 0), Vector(0, 0, 1), 3),
], False)
sketch13.addConstraint([
    Sketcher.Constraint("Equal", 0, 1),
    Sketcher.Constraint("Diameter", 0, Q("6 mm")),
    Sketcher.Constraint("DistanceY", -1, 1, 0, 3, Q("45 mm")),
    Sketcher.Constraint("DistanceX", 1, 3, -1, 1, Q("46 mm")),
    Sketcher.Constraint("DistanceY", 1, 3, -1, 1, Q("45 mm")),
    Sketcher.Constraint("DistanceX", 0, 3, -1, 1, Q("70.5 mm")),
])
doc.recompute()
hole8 = body.newObject("PartDesign::Hole", "Hole007")
hole8.Profile = sketch13
hole8.ThreadType = "None"
hole8.Diameter = 6
hole8.DepthType = "ThroughAll"
hole8.Reversed = True

sketch14 = body.newObject("Sketcher::SketchObject", "Sketch013")
sketch14.AttachmentSupport = (doc.getObject("XY_Plane"), [""])
sketch14.MapMode = "FlatFace"
sketch14.AttachmentOffset = App.Placement(Vector(0, 0, 10), App.Rotation())
sketch14.addGeometry([
    Part.Circle(Vector(2, 39, 0), Vector(0, 0, 1), 2),
    Part.Circle(Vector(7, -12, 0), Vector(0, 0, 1), 2),
], False)
sketch14.addConstraint([
    Sketcher.Constraint("Equal", 0, 1),
    Sketcher.Constraint("Diameter", 0, Q("4 mm")),
    Sketcher.Constraint("DistanceX", -1, 1, 0, 3, Q("2 mm")),
    Sketcher.Constraint("DistanceY", -1, 1, 0, 3, Q("39 mm")),
    Sketcher.Constraint("DistanceX", -1, 1, 1, 3, Q("7 mm")),
    Sketcher.Constraint("DistanceY", 1, 3, -1, 1, Q("12 mm")),
])
doc.recompute()
hole9 = body.newObject("PartDesign::Hole", "Hole008")
hole9.Profile = sketch14
hole9.ThreadType = "None"
hole9.Diameter = 4
hole9.DepthType = "ThroughAll"
hole9.Reversed = True

doc.recompute()
